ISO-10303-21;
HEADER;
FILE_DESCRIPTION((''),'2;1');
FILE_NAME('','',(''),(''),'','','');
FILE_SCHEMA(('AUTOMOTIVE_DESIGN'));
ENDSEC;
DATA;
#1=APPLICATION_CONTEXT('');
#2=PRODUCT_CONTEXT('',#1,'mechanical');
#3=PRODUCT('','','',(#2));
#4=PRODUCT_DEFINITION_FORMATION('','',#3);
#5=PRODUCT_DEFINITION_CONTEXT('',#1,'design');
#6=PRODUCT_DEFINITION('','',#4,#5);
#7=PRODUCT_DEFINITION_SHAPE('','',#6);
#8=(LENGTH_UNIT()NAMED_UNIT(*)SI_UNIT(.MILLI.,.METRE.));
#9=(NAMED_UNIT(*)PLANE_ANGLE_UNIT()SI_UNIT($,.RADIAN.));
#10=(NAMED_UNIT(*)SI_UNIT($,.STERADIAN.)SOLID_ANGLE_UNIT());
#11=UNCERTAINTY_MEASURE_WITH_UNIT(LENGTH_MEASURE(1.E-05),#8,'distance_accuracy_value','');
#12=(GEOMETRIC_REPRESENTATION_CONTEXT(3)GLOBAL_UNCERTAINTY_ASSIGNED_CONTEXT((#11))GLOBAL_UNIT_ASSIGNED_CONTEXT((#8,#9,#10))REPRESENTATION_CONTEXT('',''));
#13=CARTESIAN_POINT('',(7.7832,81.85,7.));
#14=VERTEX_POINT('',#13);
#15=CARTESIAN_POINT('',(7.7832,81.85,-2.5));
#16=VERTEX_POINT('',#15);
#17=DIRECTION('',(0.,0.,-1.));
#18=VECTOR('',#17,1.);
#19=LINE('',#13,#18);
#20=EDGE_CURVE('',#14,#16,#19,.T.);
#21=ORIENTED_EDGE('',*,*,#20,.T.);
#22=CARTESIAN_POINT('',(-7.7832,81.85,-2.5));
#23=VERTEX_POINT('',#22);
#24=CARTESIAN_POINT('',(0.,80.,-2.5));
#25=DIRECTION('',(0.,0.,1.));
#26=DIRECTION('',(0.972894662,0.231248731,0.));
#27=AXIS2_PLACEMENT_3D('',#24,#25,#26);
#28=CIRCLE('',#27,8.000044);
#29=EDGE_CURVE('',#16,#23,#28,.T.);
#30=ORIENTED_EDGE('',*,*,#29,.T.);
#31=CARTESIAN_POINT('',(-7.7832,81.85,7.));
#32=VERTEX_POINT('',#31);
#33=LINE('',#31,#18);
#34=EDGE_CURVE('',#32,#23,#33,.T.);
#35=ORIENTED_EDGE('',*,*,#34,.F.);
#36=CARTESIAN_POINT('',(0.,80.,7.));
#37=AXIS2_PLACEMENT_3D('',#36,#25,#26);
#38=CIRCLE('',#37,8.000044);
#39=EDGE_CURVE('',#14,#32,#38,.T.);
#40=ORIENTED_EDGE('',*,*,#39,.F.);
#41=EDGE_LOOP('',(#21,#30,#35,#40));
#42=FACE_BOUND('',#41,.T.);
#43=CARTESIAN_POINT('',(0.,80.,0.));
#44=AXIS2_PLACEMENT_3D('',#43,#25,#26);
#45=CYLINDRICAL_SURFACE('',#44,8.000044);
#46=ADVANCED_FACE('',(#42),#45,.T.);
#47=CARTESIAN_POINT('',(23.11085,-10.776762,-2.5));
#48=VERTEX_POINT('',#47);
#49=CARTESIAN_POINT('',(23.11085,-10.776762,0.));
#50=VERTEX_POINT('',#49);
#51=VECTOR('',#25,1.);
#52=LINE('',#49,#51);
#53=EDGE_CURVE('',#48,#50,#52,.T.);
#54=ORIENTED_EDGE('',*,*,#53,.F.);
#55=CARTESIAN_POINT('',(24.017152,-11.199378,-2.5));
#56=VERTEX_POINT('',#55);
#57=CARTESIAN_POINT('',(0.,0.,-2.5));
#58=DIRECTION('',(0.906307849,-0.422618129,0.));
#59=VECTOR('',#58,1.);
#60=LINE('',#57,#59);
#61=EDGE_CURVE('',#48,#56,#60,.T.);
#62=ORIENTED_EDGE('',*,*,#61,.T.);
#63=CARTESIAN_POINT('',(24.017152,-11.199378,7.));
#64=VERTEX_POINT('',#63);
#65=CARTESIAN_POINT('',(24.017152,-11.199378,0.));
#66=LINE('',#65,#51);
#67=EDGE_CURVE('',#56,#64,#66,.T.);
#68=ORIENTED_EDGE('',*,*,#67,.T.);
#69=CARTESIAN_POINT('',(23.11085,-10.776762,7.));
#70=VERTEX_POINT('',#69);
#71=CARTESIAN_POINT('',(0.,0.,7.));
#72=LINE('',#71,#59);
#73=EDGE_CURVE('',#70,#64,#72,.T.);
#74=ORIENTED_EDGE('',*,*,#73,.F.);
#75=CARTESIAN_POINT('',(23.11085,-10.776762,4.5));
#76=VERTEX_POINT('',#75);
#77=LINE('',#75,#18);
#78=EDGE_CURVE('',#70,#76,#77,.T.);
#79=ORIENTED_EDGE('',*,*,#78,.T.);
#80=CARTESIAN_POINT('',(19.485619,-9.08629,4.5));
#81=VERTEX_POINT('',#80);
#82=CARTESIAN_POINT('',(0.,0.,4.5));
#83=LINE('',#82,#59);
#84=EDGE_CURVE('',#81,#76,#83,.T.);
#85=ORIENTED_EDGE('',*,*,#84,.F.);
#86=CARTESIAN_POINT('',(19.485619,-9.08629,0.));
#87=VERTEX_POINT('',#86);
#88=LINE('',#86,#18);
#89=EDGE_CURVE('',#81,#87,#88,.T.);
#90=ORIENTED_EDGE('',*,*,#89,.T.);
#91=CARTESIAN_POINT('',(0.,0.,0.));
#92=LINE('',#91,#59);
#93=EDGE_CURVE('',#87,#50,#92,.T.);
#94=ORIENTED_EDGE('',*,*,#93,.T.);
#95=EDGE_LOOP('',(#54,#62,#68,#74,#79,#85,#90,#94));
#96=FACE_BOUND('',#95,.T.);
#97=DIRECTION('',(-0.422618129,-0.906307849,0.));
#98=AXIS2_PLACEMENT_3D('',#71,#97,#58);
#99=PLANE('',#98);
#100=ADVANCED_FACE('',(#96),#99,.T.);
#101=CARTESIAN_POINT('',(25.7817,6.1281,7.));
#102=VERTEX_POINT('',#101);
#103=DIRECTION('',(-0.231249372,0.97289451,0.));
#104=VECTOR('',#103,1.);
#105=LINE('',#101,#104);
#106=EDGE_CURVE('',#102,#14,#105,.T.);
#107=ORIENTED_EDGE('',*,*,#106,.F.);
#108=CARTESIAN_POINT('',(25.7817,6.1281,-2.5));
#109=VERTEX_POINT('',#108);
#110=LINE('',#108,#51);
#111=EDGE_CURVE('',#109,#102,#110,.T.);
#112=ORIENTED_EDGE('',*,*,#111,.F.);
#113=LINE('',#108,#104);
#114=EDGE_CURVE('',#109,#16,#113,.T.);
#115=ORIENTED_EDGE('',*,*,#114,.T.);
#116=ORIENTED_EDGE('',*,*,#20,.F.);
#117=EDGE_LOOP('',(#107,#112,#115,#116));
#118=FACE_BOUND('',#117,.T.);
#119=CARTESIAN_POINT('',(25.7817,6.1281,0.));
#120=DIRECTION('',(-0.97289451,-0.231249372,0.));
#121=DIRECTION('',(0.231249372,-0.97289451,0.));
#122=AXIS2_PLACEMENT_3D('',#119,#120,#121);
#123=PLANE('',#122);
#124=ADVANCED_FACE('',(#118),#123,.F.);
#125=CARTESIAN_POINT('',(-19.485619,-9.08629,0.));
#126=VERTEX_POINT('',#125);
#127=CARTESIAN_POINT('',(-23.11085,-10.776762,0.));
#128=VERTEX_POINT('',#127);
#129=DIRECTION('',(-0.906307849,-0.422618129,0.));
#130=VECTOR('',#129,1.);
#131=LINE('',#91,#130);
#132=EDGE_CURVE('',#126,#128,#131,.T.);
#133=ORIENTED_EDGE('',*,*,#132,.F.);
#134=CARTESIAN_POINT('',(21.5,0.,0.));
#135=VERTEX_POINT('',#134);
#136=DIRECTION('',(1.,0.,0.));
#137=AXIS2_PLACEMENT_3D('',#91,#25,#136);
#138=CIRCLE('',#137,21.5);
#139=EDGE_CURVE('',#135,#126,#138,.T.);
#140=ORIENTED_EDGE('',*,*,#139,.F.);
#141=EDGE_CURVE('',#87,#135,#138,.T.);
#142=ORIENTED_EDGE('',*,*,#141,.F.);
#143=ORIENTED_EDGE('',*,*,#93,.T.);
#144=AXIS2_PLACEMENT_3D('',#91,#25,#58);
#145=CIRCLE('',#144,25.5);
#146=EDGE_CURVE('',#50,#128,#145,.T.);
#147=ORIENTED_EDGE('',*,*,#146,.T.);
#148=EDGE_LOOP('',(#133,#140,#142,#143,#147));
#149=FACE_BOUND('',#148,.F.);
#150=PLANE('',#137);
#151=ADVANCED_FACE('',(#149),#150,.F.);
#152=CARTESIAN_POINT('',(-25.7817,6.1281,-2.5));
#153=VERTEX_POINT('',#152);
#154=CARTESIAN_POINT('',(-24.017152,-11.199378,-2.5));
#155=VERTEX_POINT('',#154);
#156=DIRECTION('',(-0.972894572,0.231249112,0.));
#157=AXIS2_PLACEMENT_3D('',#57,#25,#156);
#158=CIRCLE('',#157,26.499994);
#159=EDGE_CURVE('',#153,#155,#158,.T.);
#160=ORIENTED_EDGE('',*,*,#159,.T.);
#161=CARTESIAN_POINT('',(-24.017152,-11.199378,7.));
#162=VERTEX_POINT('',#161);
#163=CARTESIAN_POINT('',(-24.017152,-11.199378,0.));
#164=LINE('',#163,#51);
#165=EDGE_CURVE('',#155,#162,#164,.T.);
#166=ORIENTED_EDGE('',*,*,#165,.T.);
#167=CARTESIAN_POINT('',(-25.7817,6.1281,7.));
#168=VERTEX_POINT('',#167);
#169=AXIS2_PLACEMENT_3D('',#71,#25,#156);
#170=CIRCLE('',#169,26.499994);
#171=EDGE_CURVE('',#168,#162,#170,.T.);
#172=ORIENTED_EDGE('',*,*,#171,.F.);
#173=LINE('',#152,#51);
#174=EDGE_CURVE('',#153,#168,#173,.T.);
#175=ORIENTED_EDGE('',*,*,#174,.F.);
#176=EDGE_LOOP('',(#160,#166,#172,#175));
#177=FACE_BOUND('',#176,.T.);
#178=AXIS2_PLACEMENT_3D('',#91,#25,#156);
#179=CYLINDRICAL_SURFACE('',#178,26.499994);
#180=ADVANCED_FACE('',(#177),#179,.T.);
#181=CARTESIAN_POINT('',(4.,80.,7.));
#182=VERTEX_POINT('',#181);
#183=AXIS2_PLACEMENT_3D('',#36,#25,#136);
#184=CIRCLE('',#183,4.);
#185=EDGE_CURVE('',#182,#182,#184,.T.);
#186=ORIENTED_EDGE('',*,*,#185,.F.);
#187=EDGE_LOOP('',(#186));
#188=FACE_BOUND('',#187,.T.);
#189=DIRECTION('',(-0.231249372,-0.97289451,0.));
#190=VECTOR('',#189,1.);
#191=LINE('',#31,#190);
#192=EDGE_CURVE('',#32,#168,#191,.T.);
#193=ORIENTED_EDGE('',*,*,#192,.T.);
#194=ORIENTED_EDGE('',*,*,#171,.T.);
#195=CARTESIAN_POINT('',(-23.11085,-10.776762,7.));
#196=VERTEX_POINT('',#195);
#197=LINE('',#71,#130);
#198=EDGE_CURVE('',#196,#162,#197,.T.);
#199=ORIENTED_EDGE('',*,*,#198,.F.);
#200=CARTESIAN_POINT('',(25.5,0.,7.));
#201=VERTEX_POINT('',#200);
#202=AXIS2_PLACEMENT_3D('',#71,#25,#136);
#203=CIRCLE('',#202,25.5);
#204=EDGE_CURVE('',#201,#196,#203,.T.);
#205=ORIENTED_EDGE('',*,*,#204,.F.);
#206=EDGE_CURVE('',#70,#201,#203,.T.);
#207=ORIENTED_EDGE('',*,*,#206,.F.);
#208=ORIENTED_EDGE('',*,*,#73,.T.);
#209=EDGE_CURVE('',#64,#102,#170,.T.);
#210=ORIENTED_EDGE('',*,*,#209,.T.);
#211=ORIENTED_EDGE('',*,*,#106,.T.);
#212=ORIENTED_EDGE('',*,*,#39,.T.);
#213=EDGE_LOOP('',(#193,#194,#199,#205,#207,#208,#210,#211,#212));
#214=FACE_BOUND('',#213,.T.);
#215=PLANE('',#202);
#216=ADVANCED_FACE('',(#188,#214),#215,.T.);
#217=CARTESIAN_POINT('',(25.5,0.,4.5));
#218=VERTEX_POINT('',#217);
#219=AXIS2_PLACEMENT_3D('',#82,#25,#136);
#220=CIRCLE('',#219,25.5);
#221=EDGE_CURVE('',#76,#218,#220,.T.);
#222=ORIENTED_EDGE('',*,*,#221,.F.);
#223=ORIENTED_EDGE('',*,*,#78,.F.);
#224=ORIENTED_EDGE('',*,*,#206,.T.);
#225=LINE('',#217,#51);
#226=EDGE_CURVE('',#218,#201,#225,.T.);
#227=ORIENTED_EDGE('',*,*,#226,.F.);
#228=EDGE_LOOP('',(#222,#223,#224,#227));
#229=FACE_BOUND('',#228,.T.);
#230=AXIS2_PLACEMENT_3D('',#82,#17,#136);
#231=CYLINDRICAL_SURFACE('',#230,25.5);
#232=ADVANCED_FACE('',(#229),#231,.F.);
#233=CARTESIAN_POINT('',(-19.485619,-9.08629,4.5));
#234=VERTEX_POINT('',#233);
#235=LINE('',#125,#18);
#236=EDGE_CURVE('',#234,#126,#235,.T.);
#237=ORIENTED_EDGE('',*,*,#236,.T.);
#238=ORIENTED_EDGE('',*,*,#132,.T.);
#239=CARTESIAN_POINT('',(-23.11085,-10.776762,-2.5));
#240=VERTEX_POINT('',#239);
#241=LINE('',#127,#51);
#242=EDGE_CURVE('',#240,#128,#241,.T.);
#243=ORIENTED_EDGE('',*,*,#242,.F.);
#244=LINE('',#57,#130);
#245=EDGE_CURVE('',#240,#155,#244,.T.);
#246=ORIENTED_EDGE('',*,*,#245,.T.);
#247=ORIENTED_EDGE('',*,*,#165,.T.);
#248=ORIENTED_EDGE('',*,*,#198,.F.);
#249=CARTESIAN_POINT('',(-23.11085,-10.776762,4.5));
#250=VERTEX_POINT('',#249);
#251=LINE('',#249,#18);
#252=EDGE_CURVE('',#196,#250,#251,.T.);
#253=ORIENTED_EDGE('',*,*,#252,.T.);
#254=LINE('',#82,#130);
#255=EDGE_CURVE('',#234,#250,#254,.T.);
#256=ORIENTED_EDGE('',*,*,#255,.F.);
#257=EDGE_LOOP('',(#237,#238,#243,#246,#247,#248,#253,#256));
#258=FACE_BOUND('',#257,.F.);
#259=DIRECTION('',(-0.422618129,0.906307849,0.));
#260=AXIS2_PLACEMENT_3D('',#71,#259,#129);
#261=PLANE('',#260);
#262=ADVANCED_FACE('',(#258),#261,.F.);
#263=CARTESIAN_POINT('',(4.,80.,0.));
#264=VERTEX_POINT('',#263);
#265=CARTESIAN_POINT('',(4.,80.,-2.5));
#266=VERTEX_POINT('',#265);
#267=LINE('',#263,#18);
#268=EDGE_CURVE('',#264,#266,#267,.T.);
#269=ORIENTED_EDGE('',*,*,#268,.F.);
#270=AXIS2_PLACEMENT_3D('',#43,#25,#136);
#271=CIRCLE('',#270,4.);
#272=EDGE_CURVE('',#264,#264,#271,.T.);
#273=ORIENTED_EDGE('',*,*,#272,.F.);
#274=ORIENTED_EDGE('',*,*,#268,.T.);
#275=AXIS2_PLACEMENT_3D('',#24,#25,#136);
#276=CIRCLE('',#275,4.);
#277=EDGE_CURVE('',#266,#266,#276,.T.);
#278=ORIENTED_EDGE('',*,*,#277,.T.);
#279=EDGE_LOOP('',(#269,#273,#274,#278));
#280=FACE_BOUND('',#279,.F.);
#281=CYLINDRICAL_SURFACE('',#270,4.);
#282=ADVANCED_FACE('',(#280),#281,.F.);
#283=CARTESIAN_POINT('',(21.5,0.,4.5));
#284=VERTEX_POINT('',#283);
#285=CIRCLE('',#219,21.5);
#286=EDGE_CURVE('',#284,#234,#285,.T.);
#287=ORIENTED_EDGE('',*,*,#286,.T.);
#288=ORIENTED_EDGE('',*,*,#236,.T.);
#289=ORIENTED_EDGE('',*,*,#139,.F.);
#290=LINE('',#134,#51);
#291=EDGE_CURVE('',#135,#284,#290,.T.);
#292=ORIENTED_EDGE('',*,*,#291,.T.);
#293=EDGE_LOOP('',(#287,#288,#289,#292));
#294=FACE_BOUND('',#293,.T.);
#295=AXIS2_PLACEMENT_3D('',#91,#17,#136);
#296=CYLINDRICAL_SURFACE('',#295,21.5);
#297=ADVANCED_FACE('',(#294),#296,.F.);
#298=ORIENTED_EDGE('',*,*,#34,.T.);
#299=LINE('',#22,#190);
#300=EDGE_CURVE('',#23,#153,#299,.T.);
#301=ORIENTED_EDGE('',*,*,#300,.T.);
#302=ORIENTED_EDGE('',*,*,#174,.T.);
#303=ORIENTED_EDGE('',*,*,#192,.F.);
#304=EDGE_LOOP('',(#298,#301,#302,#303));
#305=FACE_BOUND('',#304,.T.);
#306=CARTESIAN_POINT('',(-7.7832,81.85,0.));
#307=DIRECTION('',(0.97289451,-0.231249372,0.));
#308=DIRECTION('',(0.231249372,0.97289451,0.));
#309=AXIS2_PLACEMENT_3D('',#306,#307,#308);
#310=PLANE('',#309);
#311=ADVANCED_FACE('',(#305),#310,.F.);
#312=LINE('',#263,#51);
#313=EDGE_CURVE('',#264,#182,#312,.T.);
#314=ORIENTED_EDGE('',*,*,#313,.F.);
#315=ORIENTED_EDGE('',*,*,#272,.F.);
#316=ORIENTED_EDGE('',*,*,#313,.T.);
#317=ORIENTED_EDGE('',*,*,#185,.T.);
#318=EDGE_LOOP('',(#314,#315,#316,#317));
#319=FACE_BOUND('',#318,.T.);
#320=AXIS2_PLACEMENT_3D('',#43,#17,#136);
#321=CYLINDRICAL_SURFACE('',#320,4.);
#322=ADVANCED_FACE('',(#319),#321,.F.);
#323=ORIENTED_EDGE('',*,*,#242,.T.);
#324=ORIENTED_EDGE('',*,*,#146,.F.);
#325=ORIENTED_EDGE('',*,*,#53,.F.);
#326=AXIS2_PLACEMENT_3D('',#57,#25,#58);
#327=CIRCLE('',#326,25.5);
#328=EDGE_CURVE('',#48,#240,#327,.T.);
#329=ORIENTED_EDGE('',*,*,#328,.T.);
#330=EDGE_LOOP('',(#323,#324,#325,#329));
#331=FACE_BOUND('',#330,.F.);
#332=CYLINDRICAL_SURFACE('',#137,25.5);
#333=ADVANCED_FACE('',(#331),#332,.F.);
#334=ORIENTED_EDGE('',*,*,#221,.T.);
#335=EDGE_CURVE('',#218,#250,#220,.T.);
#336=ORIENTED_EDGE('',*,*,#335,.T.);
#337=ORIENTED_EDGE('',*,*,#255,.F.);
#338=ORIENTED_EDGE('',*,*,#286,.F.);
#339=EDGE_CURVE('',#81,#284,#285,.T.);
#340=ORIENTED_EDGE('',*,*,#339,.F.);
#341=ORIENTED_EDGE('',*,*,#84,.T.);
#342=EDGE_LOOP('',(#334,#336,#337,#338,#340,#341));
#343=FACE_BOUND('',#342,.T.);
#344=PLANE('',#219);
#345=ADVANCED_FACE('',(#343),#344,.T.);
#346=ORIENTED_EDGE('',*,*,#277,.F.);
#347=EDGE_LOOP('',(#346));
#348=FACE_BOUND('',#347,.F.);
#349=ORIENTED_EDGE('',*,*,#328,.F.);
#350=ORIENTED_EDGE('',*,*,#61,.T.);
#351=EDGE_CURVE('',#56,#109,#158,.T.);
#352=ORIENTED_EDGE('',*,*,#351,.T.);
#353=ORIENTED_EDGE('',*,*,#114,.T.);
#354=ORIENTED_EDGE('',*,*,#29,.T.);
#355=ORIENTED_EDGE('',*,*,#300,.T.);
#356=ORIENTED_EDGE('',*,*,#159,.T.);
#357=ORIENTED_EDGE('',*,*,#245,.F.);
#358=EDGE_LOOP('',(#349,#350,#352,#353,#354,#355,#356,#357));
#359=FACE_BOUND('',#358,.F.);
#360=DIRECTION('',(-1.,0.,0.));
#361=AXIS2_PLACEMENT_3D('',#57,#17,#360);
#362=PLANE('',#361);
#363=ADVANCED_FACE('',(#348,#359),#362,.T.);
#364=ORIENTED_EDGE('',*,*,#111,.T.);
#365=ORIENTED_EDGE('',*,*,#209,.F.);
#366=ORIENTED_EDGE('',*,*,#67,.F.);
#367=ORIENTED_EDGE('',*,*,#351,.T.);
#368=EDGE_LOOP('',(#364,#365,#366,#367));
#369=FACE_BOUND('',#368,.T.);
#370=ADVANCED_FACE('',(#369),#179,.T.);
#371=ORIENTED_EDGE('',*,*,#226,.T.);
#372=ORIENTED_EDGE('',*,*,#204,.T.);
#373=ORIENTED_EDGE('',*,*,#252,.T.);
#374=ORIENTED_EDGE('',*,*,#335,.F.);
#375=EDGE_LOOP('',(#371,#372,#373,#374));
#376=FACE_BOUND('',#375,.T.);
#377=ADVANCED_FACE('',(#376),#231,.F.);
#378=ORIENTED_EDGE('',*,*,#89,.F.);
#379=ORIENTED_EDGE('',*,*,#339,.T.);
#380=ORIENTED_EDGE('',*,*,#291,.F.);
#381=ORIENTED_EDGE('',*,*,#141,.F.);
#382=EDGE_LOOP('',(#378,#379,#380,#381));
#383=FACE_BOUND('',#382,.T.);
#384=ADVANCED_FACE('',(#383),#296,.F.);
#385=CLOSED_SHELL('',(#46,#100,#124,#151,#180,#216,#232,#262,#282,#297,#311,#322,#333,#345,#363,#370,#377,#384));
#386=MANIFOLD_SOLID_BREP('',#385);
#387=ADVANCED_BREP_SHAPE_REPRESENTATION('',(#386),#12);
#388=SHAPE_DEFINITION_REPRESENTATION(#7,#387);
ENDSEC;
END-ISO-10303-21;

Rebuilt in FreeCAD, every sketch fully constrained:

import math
import FreeCAD as App
import Part
import Sketcher
from FreeCAD import Vector
Q = App.Units.Quantity

doc = App.newDocument("Part")
body = doc.addObject("PartDesign::Body", "Body")

sketch1 = body.newObject("Sketcher::SketchObject", "Sketch")
sketch1.AttachmentSupport = (doc.getObject("XY_Plane"), [""])
sketch1.MapMode = "FlatFace"
sketch1.addGeometry(Part.LineSegment(Vector(-7.8, 81.8, 0), Vector(-25.8, 6.1, 0)), False)
sketch1.addGeometry(Part.ArcOfCircle(Part.Circle(Vector(0, 0, 0), Vector(0, 0, 1), 26.5), math.radians(167), math.radians(373)), False)
sketch1.addGeometry(Part.LineSegment(Vector(25.8, 6.1, 0), Vector(7.8, 81.8, 0)), False)
sketch1.addGeometry(Part.ArcOfCircle(Part.Circle(Vector(0, 80, 0), Vector(0, 0, 1), 8), math.radians(13), math.radians(167)), False)
sketch1.addGeometry(Part.Circle(Vector(0, 0, 0), Vector(0, 0, 1), 21.5), False)
sketch1.addGeometry(Part.Circle(Vector(0, 80, 0), Vector(0, 0, 1), 4), False)
sketch1.addConstraint(Sketcher.Constraint("Tangent", 0, 2, 1, 1))
sketch1.addConstraint(Sketcher.Constraint("Tangent", 1, 2, 2, 1))
sketch1.addConstraint(Sketcher.Constraint("Tangent", 2, 2, 3, 1))
sketch1.addConstraint(Sketcher.Constraint("Tangent", 3, 2, 0, 1))
sketch1.addConstraint(Sketcher.Constraint("Coincident", 1, 3, -1, 1))
sketch1.addConstraint(Sketcher.Constraint("Coincident", 4, 3, -1, 1))
sketch1.addConstraint(Sketcher.Constraint("Coincident", 5, 3, 3, 3))
sketch1.addConstraint(Sketcher.Constraint("PointOnObject", 3, 3, -2))
sketch1.addConstraint(Sketcher.Constraint("Diameter", 4, 43.0))
sketch1.addConstraint(Sketcher.Constraint("Diameter", 5, 8.0))
sketch1.addConstraint(Sketcher.Constraint("Radius", 3, 8.0))
sketch1.addConstraint(Sketcher.Constraint("DistanceY", -1, 1, 3, 3, 80.0))
sketch1.addConstraint(Sketcher.Constraint("Radius", 1, 26.5))
pad1 = body.newObject("PartDesign::Pad", "Pad")
pad1.Profile = sketch1
pad1.Length = 4.5

sketch2 = body.newObject("Sketcher::SketchObject", "Sketch001")
sketch2.AttachmentSupport = (doc.getObject("XY_Plane"), [""])
sketch2.MapMode = "FlatFace"
sketch2.AttachmentOffset = App.Placement(Vector(0, 0, 4.5), App.Rotation())
sketch2.addGeometry(Part.LineSegment(Vector(-7.8, 81.8, 0), Vector(-25.8, 6.1, 0)), False)
sketch2.addGeometry(Part.ArcOfCircle(Part.Circle(Vector(0, 0, 0), Vector(0, 0, 1), 26.5), math.radians(167), math.radians(373)), False)
sketch2.addGeometry(Part.LineSegment(Vector(25.8, 6.1, 0), Vector(7.8, 81.8, 0)), False)
sketch2.addGeometry(Part.ArcOfCircle(Part.Circle(Vector(0, 80, 0), Vector(0, 0, 1), 8), math.radians(13), math.radians(167)), False)
sketch2.addGeometry(Part.Circle(Vector(0, 0, 0), Vector(0, 0, 1), 25.5), False)
sketch2.addGeometry(Part.Circle(Vector(0, 80, 0), Vector(0, 0, 1), 4), False)
sketch2.addConstraint(Sketcher.Constraint("Tangent", 0, 2, 1, 1))
sketch2.addConstraint(Sketcher.Constraint("Tangent", 1, 2, 2, 1))
sketch2.addConstraint(Sketcher.Constraint("Tangent", 2, 2, 3, 1))
sketch2.addConstraint(Sketcher.Constraint("Tangent", 3, 2, 0, 1))
sketch2.addConstraint(Sketcher.Constraint("Coincident", 1, 3, -1, 1))
sketch2.addConstraint(Sketcher.Constraint("Coincident", 4, 3, -1, 1))
sketch2.addConstraint(Sketcher.Constraint("Coincident", 5, 3, 3, 3))
sketch2.addConstraint(Sketcher.Constraint("PointOnObject", 3, 3, -2))
sketch2.addConstraint(Sketcher.Constraint("Diameter", 4, 51.0))
sketch2.addConstraint(Sketcher.Constraint("Diameter", 5, 8.0))
sketch2.addConstraint(Sketcher.Constraint("Radius", 3, 8.0))
sketch2.addConstraint(Sketcher.Constraint("Radius", 1, 26.5))
sketch2.addConstraint(Sketcher.Constraint("DistanceY", -1, 1, 3, 3, 80.0))
pad2 = body.newObject("PartDesign::Pad", "Pad001")
pad2.Profile = sketch2
pad2.Length = 2.5
doc.recompute()

datumplane = body.newObject("PartDesign::Plane", "DatumPlane")
datumplane.AttachmentSupport = (doc.getObject("XY_Plane"), [""])
datumplane.MapMode = "FlatFace"
datumplane.AttachmentOffset = App.Placement(Vector(0, 0, 2.25), App.Rotation())
mirrored = body.newObject("PartDesign::Mirrored", "Mirrored")
mirrored.Originals = [pad2]
mirrored.MirrorPlane = (datumplane, [""])
body.Tip = mirrored

sketch3 = body.newObject("Sketcher::SketchObject", "Sketch002")
sketch3.AttachmentSupport = (doc.getObject("XY_Plane"), [""])
sketch3.MapMode = "FlatFace"
sketch3.AttachmentOffset = App.Placement(Vector(0, 0, 7), App.Rotation())
sketch3.addGeometry(Part.LineSegment(Vector(24, -11, 0), Vector(0, 0, 0)), False)
sketch3.addGeometry(Part.LineSegment(Vector(0, 0, 0), Vector(-24, -11, 0)), False)
sketch3.addGeometry(Part.ArcOfCircle(Part.Circle(Vector(0, 0, 0), Vector(0, 0, 1), 27), math.radians(-155), math.radians(-25)), False)
sketch3.addConstraint(Sketcher.Constraint("Coincident", 0, 2, 1, 1))
sketch3.addConstraint(Sketcher.Constraint("Coincident", 1, 2, 2, 1))
sketch3.addConstraint(Sketcher.Constraint("Coincident", 2, 2, 0, 1))
sketch3.addConstraint(Sketcher.Constraint("Coincident", 2, 3, -1, 1))
sketch3.addConstraint(Sketcher.Constraint("Coincident", 0, 2, -1, 1))
sketch3.addConstraint(Sketcher.Constraint("Horizontal", 1, 2, 2, 2))
sketch3.addConstraint(Sketcher.Constraint("Radius", 2, 26.5))
sketch3.addConstraint(Sketcher.Constraint("Angle", 0, Q("155 deg")))
pocket1 = body.newObject("PartDesign::Pocket", "Pocket")
pocket1.Profile = sketch3
pocket1.Type = "ThroughAll"

doc.recompute()
